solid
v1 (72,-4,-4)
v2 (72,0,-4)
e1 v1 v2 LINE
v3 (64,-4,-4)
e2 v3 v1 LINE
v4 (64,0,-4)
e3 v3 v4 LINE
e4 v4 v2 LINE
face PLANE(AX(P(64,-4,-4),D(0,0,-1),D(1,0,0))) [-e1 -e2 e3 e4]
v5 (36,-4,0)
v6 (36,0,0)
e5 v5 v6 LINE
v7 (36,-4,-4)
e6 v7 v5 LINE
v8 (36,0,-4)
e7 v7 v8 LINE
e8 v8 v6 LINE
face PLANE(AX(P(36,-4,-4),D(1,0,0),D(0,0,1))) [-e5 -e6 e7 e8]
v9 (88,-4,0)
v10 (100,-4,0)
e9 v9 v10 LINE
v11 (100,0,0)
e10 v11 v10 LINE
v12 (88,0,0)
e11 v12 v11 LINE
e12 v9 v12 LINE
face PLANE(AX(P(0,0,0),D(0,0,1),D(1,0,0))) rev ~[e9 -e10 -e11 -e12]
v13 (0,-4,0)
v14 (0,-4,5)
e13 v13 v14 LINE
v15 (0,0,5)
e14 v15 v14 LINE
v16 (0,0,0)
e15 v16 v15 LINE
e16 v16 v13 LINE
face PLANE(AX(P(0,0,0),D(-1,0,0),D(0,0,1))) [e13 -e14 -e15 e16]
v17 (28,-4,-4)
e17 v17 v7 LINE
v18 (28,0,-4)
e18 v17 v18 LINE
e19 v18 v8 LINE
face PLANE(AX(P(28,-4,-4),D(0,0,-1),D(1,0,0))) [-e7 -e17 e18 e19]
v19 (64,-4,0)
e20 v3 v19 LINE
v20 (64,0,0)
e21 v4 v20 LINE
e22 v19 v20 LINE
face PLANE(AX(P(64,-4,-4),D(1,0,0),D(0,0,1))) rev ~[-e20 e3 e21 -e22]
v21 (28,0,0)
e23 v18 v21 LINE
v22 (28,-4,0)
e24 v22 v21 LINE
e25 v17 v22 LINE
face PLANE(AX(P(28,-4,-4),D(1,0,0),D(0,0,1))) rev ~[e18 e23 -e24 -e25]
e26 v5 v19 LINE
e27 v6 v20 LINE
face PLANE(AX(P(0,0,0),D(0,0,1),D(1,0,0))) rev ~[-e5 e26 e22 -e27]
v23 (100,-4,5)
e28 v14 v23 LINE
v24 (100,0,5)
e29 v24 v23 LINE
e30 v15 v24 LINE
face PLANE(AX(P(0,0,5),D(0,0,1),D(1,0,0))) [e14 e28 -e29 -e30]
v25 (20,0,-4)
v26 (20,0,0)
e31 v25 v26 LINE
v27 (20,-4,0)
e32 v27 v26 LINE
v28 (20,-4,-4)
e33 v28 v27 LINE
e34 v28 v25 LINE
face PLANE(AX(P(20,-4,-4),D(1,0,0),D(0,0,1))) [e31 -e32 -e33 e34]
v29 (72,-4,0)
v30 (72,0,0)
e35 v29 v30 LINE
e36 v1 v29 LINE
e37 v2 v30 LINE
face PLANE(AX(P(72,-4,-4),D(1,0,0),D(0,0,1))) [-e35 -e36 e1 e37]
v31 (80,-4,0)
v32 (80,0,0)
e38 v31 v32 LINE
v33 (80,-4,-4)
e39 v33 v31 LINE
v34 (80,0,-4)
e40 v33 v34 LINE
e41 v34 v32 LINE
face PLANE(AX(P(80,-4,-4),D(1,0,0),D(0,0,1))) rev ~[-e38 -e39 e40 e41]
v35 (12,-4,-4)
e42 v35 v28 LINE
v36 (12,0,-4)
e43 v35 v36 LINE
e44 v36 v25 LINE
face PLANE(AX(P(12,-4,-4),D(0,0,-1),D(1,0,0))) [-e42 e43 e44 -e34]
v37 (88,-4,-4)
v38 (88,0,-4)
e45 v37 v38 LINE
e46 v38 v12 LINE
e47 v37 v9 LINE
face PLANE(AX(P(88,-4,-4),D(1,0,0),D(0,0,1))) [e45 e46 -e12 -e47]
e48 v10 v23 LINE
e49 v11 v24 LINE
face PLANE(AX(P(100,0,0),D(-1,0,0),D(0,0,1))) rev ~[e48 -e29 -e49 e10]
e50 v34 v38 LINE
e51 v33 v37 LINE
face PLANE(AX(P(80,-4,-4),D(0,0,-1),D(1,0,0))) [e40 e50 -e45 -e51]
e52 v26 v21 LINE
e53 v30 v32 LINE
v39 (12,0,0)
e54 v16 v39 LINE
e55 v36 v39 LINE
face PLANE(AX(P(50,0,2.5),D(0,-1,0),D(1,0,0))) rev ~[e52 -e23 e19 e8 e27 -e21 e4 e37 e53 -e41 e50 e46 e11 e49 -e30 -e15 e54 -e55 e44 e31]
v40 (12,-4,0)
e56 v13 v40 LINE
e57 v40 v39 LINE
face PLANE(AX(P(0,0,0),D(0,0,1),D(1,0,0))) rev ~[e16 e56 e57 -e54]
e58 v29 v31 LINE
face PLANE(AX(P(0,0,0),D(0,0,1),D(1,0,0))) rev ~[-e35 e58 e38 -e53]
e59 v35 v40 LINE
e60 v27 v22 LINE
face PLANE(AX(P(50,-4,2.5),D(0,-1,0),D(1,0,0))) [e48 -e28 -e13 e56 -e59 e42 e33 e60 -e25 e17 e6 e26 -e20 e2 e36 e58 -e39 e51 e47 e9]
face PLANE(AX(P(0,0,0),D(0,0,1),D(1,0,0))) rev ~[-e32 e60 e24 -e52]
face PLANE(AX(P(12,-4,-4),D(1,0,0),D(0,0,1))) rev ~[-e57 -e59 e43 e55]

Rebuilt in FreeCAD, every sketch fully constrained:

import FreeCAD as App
import Part
import Sketcher
Q = App.Units.Quantity

doc = App.newDocument("Part")
body = doc.addObject("PartDesign::Body", "Body")

# Sketch on XZ plane
sketch1 = doc.addObject("Sketcher::SketchObject", "Sketch")
body.addObject(sketch1)
sketch1.AttachmentSupport = (doc.XZ_Plane, [""])
sketch1.MapMode = "FlatFace"
sketch1.addGeometry([
    Part.LineSegment(App.Vector(0, 5, 0), App.Vector(0, 0, 0)),
    Part.LineSegment(App.Vector(0, 0, 0), App.Vector(100, 0, 0)),
    Part.LineSegment(App.Vector(100, 0, 0), App.Vector(100, 5, 0)),
    Part.LineSegment(App.Vector(100, 5, 0), App.Vector(0, 5, 0)),
], False)
sketch1.addConstraint([
    Sketcher.Constraint("Coincident", 0, 2, 1, 1),
    Sketcher.Constraint("Coincident", 1, 2, 2, 1),
    Sketcher.Constraint("Coincident", 2, 2, 3, 1),
    Sketcher.Constraint("Coincident", 3, 2, 0, 1),
    Sketcher.Constraint("Vertical", 0),
    Sketcher.Constraint("Horizontal", 1),
    Sketcher.Constraint("Vertical", 2),
    Sketcher.Constraint("Horizontal", 3),
    Sketcher.Constraint("Coincident", 0, 2, -1, 1),
    Sketcher.Constraint("DistanceX", 1, 1, 1, 2, Q("100 mm")),
    Sketcher.Constraint("DistanceY", 0, 2, 0, 1, Q("5 mm")),
])
pad1 = doc.addObject("PartDesign::Pad", "Pad")
body.addObject(pad1)
pad1.Profile = sketch1
pad1.Length = 4

# Sketch on XZ plane
sketch2 = doc.addObject("Sketcher::SketchObject", "Sketch001")
body.addObject(sketch2)
sketch2.AttachmentSupport = (doc.XZ_Plane, [""])
sketch2.MapMode = "FlatFace"
sketch2.AttachmentOffset = App.Placement(App.Vector(0, 0, 4), App.Rotation())
sketch2.addGeometry([
    Part.LineSegment(App.Vector(12, 0, 0), App.Vector(12, -4, 0)),  # 0
    Part.LineSegment(App.Vector(12, -4, 0), App.Vector(20, -4, 0)),  # 1
    Part.LineSegment(App.Vector(20, -4, 0), App.Vector(20, 0, 0)),  # 2
    Part.LineSegment(App.Vector(20, 0, 0), App.Vector(12, 0, 0)),  # 3
    Part.LineSegment(App.Vector(28, 0, 0), App.Vector(28, -4, 0)),  # 4
    Part.LineSegment(App.Vector(28, -4, 0), App.Vector(36, -4, 0)),  # 5
    Part.LineSegment(App.Vector(36, -4, 0), App.Vector(36, 0, 0)),  # 6
    Part.LineSegment(App.Vector(36, 0, 0), App.Vector(28, 0, 0)),  # 7
    Part.LineSegment(App.Vector(80, 0, 0), App.Vector(80, -4, 0)),  # 8
    Part.LineSegment(App.Vector(80, -4, 0), App.Vector(88, -4, 0)),  # 9
    Part.LineSegment(App.Vector(88, -4, 0), App.Vector(88, 0, 0)),  # 10
    Part.LineSegment(App.Vector(88, 0, 0), App.Vector(80, 0, 0)),  # 11
    Part.LineSegment(App.Vector(64, 0, 0), App.Vector(64, -4, 0)),  # 12
    Part.LineSegment(App.Vector(64, -4, 0), App.Vector(72, -4, 0)),  # 13
    Part.LineSegment(App.Vector(72, -4, 0), App.Vector(72, 0, 0)),  # 14
    Part.LineSegment(App.Vector(72, 0, 0), App.Vector(64, 0, 0)),  # 15
], False)
sketch2.addConstraint([
    Sketcher.Constraint("Coincident", 0, 2, 1, 1),
    Sketcher.Constraint("Coincident", 1, 2, 2, 1),
    Sketcher.Constraint("Coincident", 2, 2, 3, 1),
    Sketcher.Constraint("Coincident", 3, 2, 0, 1),
    Sketcher.Constraint("Coincident", 4, 2, 5, 1),
    Sketcher.Constraint("Coincident", 5, 2, 6, 1),
    Sketcher.Constraint("Coincident", 6, 2, 7, 1),
    Sketcher.Constraint("Coincident", 7, 2, 4, 1),
    Sketcher.Constraint("Coincident", 8, 2, 9, 1),
    Sketcher.Constraint("Coincident", 9, 2, 10, 1),
    Sketcher.Constraint("Coincident", 10, 2, 11, 1),
    Sketcher.Constraint("Coincident", 11, 2, 8, 1),
    Sketcher.Constraint("Coincident", 12, 2, 13, 1),
    Sketcher.Constraint("Coincident", 13, 2, 14, 1),
    Sketcher.Constraint("Coincident", 14, 2, 15, 1),
    Sketcher.Constraint("Coincident", 15, 2, 12, 1),
    Sketcher.Constraint("Vertical", 0),
    Sketcher.Constraint("Horizontal", 1),
    Sketcher.Constraint("Vertical", 2),
    Sketcher.Constraint("Horizontal", 3),
    Sketcher.Constraint("Vertical", 4),
    Sketcher.Constraint("Horizontal", 5),
    Sketcher.Constraint("Vertical", 6),
    Sketcher.Constraint("Horizontal", 7),
    Sketcher.Constraint("Vertical", 8),
    Sketcher.Constraint("Horizontal", 9),
    Sketcher.Constraint("Vertical", 10),
    Sketcher.Constraint("Horizontal", 11),
    Sketcher.Constraint("Vertical", 12),
    Sketcher.Constraint("Horizontal", 13),
    Sketcher.Constraint("Vertical", 14),
    Sketcher.Constraint("Horizontal", 15),
    Sketcher.Constraint("PointOnObject", 2, 2, -1),
    Sketcher.Constraint("PointOnObject", 6, 2, -1),
    Sketcher.Constraint("PointOnObject", 10, 2, -1),
    Sketcher.Constraint("PointOnObject", 14, 2, -1),
    Sketcher.Constraint("Horizontal", 1, 2, 4, 2),
    Sketcher.Constraint("Horizontal", 5, 2, 8, 2),
    Sketcher.Constraint("Horizontal", 9, 2, 12, 2),
    Sketcher.Constraint("Equal", 3, 5),
    Sketcher.Constraint("Equal", 7, 9),
    Sketcher.Constraint("Equal", 11, 13),
    Sketcher.Constraint("DistanceX", 1, 1, 1, 2, Q("8 mm")),
    Sketcher.Constraint("DistanceY", 0, 2, 0, 1, Q("4 mm")),
    Sketcher.Constraint("DistanceX", -1, 1, 0, 2, Q("12 mm")),
    Sketcher.Constraint("DistanceX", -1, 1, 4, 2, Q("28 mm")),
    Sketcher.Constraint("DistanceX", -1, 1, 8, 2, Q("80 mm")),
    Sketcher.Constraint("DistanceX", -1, 1, 12, 2, Q("64 mm")),
])
pad2 = doc.addObject("PartDesign::Pad", "Pad001")
body.addObject(pad2)
pad2.Profile = sketch2
pad2.Length = 4
pad2.Reversed = True

doc.recompute()
